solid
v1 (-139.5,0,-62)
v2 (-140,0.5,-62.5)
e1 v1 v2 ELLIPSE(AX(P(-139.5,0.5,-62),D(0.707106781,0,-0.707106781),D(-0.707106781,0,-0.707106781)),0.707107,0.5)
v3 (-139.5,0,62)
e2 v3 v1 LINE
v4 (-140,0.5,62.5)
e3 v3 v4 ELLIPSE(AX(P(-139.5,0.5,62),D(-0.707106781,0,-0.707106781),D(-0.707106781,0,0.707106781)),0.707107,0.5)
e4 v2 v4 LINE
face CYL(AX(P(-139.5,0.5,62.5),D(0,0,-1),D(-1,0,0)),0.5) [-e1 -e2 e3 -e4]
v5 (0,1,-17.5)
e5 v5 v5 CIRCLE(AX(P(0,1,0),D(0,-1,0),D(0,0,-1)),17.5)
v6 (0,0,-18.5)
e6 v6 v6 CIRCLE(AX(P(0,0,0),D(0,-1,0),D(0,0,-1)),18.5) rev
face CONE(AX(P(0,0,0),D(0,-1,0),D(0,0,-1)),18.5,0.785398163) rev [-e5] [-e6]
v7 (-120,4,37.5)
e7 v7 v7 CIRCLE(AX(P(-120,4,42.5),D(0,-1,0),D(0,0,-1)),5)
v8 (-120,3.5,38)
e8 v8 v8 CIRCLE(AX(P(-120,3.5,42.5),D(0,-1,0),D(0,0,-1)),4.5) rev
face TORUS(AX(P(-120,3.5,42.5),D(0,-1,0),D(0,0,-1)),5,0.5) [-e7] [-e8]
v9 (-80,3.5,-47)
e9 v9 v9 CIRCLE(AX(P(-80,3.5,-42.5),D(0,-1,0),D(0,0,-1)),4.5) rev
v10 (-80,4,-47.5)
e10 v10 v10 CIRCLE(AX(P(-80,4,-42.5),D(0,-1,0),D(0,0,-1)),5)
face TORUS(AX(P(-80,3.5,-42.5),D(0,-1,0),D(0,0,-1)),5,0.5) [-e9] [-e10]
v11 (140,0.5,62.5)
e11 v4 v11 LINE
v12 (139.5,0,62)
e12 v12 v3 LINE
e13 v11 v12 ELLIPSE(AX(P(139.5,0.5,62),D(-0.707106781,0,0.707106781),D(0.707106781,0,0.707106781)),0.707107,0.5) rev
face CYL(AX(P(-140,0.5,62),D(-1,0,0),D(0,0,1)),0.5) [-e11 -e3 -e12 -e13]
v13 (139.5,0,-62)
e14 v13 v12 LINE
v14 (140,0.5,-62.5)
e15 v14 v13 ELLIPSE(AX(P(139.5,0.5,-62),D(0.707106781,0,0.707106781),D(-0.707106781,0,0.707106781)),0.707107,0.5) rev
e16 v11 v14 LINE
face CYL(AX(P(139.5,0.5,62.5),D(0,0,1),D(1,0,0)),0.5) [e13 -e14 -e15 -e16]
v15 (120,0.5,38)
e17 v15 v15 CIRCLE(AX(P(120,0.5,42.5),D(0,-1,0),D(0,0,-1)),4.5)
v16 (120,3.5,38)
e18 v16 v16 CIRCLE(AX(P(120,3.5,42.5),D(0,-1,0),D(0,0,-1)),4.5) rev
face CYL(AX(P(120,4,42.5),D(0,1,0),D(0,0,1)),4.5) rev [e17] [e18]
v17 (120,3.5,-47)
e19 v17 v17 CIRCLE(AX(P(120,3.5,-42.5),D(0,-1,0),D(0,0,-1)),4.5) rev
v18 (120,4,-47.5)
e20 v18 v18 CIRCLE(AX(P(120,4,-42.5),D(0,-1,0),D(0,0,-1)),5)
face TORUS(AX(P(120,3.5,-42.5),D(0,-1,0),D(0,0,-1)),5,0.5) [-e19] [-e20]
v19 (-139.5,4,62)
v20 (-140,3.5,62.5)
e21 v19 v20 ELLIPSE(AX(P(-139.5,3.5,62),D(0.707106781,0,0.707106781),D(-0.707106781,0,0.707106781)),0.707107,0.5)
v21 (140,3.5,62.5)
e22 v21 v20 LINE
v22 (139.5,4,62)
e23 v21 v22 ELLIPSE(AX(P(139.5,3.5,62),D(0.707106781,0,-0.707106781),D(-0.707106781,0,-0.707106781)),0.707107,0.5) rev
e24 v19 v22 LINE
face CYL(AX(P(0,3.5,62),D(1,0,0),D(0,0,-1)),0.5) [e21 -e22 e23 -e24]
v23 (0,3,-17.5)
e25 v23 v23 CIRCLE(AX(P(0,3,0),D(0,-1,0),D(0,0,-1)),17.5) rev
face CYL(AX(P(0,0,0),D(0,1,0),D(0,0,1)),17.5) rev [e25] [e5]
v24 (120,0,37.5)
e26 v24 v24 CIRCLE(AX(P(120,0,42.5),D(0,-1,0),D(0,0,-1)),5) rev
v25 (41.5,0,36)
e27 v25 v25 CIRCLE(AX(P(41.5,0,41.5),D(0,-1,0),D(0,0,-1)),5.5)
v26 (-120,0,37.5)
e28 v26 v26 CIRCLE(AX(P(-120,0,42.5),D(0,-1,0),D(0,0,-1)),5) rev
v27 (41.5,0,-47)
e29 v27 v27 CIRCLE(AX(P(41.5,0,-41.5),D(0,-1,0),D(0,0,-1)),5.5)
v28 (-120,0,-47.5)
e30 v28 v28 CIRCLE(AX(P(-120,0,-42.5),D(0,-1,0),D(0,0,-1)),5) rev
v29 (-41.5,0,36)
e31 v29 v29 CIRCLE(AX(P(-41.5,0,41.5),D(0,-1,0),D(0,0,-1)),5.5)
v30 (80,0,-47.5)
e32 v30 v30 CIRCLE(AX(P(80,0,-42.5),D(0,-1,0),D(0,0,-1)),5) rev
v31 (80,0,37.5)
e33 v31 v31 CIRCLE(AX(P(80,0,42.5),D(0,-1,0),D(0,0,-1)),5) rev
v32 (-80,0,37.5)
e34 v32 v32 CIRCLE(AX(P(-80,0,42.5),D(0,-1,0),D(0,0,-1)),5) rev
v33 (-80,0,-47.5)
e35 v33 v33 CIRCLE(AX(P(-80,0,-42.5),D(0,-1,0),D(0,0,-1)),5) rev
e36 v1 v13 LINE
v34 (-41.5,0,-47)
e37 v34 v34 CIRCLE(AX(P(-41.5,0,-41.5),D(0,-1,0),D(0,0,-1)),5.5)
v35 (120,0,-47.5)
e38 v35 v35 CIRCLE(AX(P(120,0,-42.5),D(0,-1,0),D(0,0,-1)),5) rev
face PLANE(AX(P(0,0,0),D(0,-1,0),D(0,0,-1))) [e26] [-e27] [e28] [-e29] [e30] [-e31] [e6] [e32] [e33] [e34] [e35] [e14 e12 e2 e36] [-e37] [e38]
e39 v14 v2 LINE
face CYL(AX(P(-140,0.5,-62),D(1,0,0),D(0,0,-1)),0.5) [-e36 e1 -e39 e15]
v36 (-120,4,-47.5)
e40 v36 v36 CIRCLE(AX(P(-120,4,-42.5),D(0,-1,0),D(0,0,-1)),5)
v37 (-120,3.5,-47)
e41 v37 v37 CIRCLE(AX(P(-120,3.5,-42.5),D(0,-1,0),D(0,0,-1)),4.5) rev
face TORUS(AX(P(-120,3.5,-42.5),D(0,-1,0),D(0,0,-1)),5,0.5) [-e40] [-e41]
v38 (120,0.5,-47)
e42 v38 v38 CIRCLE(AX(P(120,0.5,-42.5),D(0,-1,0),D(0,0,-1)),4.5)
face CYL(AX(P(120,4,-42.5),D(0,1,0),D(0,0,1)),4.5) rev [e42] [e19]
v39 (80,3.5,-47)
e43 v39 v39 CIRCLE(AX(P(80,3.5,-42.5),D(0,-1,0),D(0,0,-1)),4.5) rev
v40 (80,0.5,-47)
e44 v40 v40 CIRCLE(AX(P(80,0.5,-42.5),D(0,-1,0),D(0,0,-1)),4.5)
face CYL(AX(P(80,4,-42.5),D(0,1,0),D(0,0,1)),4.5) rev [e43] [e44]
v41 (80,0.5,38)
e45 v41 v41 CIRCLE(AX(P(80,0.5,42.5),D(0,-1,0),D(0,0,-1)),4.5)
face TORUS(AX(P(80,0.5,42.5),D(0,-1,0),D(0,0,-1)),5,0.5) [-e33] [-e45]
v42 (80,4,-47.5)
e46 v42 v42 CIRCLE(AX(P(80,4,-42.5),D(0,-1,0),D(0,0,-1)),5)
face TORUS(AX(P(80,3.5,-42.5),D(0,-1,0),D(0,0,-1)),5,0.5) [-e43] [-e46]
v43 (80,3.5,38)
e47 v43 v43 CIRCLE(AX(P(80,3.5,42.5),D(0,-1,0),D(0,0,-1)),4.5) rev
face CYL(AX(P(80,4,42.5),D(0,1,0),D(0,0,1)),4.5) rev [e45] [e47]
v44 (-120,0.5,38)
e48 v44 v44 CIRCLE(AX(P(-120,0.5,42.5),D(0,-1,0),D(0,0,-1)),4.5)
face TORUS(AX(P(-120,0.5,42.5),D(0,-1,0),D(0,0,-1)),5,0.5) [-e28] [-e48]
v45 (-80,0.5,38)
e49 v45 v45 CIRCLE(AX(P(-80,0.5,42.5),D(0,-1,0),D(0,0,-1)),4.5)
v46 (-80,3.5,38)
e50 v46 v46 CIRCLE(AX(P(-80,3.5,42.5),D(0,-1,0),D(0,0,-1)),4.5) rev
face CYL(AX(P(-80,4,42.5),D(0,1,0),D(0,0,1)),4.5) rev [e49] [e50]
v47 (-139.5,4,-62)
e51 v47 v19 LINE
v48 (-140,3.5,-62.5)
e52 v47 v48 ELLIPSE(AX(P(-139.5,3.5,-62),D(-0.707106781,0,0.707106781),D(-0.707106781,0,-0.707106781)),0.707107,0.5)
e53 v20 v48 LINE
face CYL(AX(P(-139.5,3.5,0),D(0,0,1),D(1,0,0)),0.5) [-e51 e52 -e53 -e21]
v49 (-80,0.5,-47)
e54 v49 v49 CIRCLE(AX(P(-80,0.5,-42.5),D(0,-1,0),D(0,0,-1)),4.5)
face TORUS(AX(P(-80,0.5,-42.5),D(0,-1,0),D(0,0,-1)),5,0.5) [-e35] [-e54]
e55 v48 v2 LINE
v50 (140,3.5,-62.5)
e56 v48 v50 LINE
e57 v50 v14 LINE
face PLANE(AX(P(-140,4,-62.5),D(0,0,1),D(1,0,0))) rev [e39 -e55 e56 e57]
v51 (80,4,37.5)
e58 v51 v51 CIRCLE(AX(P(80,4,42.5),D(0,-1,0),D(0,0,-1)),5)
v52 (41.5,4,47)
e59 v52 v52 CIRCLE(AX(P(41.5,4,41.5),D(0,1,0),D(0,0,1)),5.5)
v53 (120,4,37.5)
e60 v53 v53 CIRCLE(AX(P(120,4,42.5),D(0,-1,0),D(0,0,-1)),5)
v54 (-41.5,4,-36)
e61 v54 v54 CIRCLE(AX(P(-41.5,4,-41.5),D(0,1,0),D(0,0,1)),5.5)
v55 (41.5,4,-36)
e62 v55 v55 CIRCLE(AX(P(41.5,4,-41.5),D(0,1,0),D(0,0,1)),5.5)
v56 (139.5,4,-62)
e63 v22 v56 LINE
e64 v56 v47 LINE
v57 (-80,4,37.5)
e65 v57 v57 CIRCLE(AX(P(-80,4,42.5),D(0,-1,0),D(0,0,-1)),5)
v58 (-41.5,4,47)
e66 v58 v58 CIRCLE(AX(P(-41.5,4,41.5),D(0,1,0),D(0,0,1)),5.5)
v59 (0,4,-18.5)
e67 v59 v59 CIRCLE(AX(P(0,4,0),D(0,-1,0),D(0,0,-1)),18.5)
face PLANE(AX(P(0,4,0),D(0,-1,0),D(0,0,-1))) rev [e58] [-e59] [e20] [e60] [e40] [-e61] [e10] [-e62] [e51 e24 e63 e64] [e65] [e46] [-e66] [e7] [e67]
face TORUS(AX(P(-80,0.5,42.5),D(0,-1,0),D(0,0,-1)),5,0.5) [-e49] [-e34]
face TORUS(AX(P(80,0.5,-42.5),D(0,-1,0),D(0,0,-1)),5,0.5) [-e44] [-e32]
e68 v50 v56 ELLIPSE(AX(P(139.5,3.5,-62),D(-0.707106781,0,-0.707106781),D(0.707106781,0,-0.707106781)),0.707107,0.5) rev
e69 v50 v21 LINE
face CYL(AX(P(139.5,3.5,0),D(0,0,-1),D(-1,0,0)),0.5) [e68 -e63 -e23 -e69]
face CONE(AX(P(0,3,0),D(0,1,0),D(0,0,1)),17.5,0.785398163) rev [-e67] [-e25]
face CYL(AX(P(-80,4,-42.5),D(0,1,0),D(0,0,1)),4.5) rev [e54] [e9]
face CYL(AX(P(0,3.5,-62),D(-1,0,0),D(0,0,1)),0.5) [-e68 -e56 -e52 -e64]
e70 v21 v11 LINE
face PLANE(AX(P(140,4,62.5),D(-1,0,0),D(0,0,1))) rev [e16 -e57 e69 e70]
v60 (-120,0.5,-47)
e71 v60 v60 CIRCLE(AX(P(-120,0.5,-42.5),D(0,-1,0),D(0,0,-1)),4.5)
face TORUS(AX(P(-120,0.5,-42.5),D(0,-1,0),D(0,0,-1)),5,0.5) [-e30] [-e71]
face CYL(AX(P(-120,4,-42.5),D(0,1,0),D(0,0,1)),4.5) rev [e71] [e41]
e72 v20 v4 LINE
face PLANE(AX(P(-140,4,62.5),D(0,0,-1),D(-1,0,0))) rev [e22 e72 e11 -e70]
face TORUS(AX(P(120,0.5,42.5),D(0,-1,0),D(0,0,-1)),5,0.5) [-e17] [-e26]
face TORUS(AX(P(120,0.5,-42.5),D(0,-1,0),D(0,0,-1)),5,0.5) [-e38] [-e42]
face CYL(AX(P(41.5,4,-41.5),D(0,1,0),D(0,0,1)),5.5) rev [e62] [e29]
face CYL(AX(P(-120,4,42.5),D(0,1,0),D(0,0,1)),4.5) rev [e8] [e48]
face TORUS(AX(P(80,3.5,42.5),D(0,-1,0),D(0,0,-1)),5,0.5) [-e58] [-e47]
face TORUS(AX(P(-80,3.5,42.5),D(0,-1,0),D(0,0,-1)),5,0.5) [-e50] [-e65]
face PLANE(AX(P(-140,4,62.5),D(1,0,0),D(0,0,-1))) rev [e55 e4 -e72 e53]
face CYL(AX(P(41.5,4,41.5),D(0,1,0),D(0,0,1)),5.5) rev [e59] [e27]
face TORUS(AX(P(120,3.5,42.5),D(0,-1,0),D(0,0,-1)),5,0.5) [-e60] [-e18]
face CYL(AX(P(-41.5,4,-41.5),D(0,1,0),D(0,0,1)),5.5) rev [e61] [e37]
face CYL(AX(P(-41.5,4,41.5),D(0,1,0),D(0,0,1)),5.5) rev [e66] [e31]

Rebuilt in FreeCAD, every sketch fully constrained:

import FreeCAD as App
import Part
import Sketcher
from FreeCAD import Vector
Q = App.Units.Quantity


def edges_at(feature, points):
    """Names of the edges that pass closest to the given points."""
    edges = feature.Shape.Edges
    near = lambda p: min(range(len(edges)), key=lambda i: edges[i].distToShape(Part.Vertex(*p))[0])
    return sorted({f"Edge{near(p) + 1}" for p in points})

doc = App.newDocument("Part")
body = doc.addObject("PartDesign::Body", "Body")

# Sketch on XZ plane
sketch1 = body.newObject("Sketcher::SketchObject", "Sketch")
sketch1.AttachmentSupport = (doc.getObject("XZ_Plane"), [""])
sketch1.MapMode = "FlatFace"
sketch1.addGeometry([
    Part.LineSegment(Vector(-140, -62, 0), Vector(-140, 62, 0)),
    Part.LineSegment(Vector(-140, 62, 0), Vector(140, 62, 0)),
    Part.LineSegment(Vector(140, 62, 0), Vector(140, -62, 0)),
    Part.LineSegment(Vector(140, -62, 0), Vector(-140, -62, 0)),
], False)
sketch1.addConstraint([
    Sketcher.Constraint("Coincident", 0, 2, 1, 1),
    Sketcher.Constraint("Coincident", 1, 2, 2, 1),
    Sketcher.Constraint("Coincident", 2, 2, 3, 1),
    Sketcher.Constraint("Coincident", 3, 2, 0, 1),
    Sketcher.Constraint("Vertical", 0),
    Sketcher.Constraint("Horizontal", 1),
    Sketcher.Constraint("Vertical", 2),
    Sketcher.Constraint("Horizontal", 3),
    Sketcher.Constraint("Symmetric", 0, 2, 2, 2, -1, 1),
    Sketcher.Constraint("DistanceX", 1, 1, 1, 2, Q("280 mm")),
    Sketcher.Constraint("DistanceY", 0, 1, 0, 2, Q("125 mm")),
])
pad1 = body.newObject("PartDesign::Pad", "Pad")
pad1.Profile = sketch1
pad1.Length = 4
pad1.Reversed = True

# Sketch on XZ plane
sketch2 = body.newObject("Sketcher::SketchObject", "Sketch001")
sketch2.AttachmentSupport = (doc.getObject("XZ_Plane"), [""])
sketch2.MapMode = "FlatFace"
sketch2.AttachmentOffset = App.Placement(Vector(0, 0, -4), App.Rotation())
sketch2.addGeometry([
    Part.Circle(Vector(-120, -42.5, 0), Vector(0, 0, 1), 4.5),  # 0
    Part.Circle(Vector(-80, -42.5, 0), Vector(0, 0, 1), 4.5),  # 1
    Part.Circle(Vector(-80, 42.5, 0), Vector(0, 0, 1), 4.5),  # 2
    Part.Circle(Vector(-120, 42.5, 0), Vector(0, 0, 1), 4.5),  # 3
    Part.Circle(Vector(120, 42.5, 0), Vector(0, 0, 1), 4.5),  # 4
    Part.Circle(Vector(80, 42.5, 0), Vector(0, 0, 1), 4.5),  # 5
    Part.Circle(Vector(80, -42.5, 0), Vector(0, 0, 1), 4.5),  # 6
    Part.Circle(Vector(120, -42.5, 0), Vector(0, 0, 1), 4.5),  # 7
], False)
sketch2.addConstraint([
    Sketcher.Constraint("Equal", 0, 1),
    Sketcher.Constraint("Equal", 1, 2),
    Sketcher.Constraint("Equal", 2, 3),
    Sketcher.Constraint("Equal", 3, 4),
    Sketcher.Constraint("Equal", 4, 5),
    Sketcher.Constraint("Equal", 5, 6),
    Sketcher.Constraint("Equal", 6, 7),
    Sketcher.Constraint("Symmetric", 0, 3, 4, 3, -1, 1),
    Sketcher.Constraint("Symmetric", 1, 3, 5, 3, -1, 1),
    Sketcher.Constraint("Symmetric", 2, 3, 6, 3, -1, 1),
    Sketcher.Constraint("Symmetric", 3, 3, 7, 3, -1, 1),
    Sketcher.Constraint("Symmetric", 3, 3, 4, 3, -2),
    Sketcher.Constraint("Symmetric", 2, 3, 5, 3, -2),
    Sketcher.Constraint("Horizontal", 0, 3, 1, 3),
    Sketcher.Constraint("Diameter", 0, Q("9 mm")),
    Sketcher.Constraint("DistanceX", 0, 3, -1, 1, Q("120 mm")),
    Sketcher.Constraint("DistanceX", 1, 3, -1, 1, Q("80 mm")),
    Sketcher.Constraint("DistanceY", 1, 3, 2, 3, Q("85 mm")),
])
doc.recompute()
hole = body.newObject("PartDesign::Hole", "Hole")
hole.Profile = sketch2
hole.ThreadType = "None"
hole.Diameter = 9
hole.DepthType = "Dimension"
hole.Depth = 10
hole.DrillPoint = "Angled"
hole.DrillPointAngle = 118
hole.Reversed = True
doc.recompute()

fillet = body.newObject("PartDesign::Fillet", "Fillet")
fillet.Base = (hole, edges_at(hole, [
    (-140, 4, 0),
    (0, 4, 62.5),
    (124.5, 0, -42.5),
    (124.5, 4, -42.5),
    (84.5, 0, -42.5),
    (84.5, 4, -42.5),
    (84.5, 0, 42.5),
    (84.5, 4, 42.5),
    (124.5, 0, 42.5),
    (124.5, 4, 42.5),
    (-115.5, 0, 42.5),
    (-115.5, 4, 42.5),
    (140, 4, 0),
    (0, 0, 62.5),
    (-75.5, 0, 42.5),
    (-75.5, 4, 42.5),
    (-140, 0, 0),
    (-75.5, 0, -42.5),
    (-75.5, 4, -42.5),
    (0, 0, -62.5),
    (140, 0, 0),
    (-115.5, 0, -42.5),
    (-115.5, 4, -42.5),
    (0, 4, -62.5),
]))
fillet.Radius = 0.5

# Sketch on XZ plane
sketch3 = body.newObject("Sketcher::SketchObject", "Sketch002")
sketch3.AttachmentSupport = (doc.getObject("XZ_Plane"), [""])
sketch3.MapMode = "FlatFace"
sketch3.AttachmentOffset = App.Placement(Vector(0, 0, -4), App.Rotation())
sketch3.addGeometry([
    Part.Circle(Vector(42, -42, 0), Vector(0, 0, 1), 6),
    Part.Circle(Vector(-42, -42, 0), Vector(0, 0, 1), 6),
    Part.Circle(Vector(-42, 42, 0), Vector(0, 0, 1), 6),
    Part.Circle(Vector(42, 42, 0), Vector(0, 0, 1), 6),
], False)
sketch3.addConstraint([
    Sketcher.Constraint("Equal", 0, 1),
    Sketcher.Constraint("Equal", 1, 2),
    Sketcher.Constraint("Equal", 2, 3),
    Sketcher.Constraint("Symmetric", 0, 3, 2, 3, -1, 1),
    Sketcher.Constraint("Symmetric", 1, 3, 3, 3, -1, 1),
    Sketcher.Constraint("Symmetric", 0, 3, 1, 3, -2),
    Sketcher.Constraint("Diameter", 0, Q("11 mm")),
    Sketcher.Constraint("DistanceX", 1, 3, 0, 3, Q("83 mm")),
    Sketcher.Constraint("DistanceY", 1, 3, 2, 3, Q("83 mm")),
])
doc.recompute()
hole2 = body.newObject("PartDesign::Hole", "Hole001")
hole2.Profile = sketch3
hole2.ThreadType = "None"
hole2.Diameter = 11
hole2.DepthType = "Dimension"
hole2.Depth = 10
hole2.DrillPoint = "Angled"
hole2.DrillPointAngle = 118
hole2.Reversed = True

# Sketch on XZ plane
sketch4 = body.newObject("Sketcher::SketchObject", "Sketch003")
sketch4.AttachmentSupport = (doc.getObject("XZ_Plane"), [""])
sketch4.MapMode = "FlatFace"
sketch4.AttachmentOffset = App.Placement(Vector(0, 0, -4), App.Rotation())
sketch4.addGeometry(Part.Circle(Vector(0, 0, 0), Vector(0, 0, 1), 18), False)
sketch4.addConstraint([
    Sketcher.Constraint("Coincident", 0, 3, -1, 1),
    Sketcher.Constraint("Diameter", 0, Q("35 mm")),
])
pocket1 = body.newObject("PartDesign::Pocket", "Pocket")
pocket1.Profile = sketch4
pocket1.Length = 4
pocket1.Reversed = True
doc.recompute()

chamfer = body.newObject("PartDesign::Chamfer", "Chamfer")
chamfer.Base = (pocket1, edges_at(pocket1, [(0, 0, -17.5), (0, 4, -17.5)]))
chamfer.Size = 1

doc.recompute()
